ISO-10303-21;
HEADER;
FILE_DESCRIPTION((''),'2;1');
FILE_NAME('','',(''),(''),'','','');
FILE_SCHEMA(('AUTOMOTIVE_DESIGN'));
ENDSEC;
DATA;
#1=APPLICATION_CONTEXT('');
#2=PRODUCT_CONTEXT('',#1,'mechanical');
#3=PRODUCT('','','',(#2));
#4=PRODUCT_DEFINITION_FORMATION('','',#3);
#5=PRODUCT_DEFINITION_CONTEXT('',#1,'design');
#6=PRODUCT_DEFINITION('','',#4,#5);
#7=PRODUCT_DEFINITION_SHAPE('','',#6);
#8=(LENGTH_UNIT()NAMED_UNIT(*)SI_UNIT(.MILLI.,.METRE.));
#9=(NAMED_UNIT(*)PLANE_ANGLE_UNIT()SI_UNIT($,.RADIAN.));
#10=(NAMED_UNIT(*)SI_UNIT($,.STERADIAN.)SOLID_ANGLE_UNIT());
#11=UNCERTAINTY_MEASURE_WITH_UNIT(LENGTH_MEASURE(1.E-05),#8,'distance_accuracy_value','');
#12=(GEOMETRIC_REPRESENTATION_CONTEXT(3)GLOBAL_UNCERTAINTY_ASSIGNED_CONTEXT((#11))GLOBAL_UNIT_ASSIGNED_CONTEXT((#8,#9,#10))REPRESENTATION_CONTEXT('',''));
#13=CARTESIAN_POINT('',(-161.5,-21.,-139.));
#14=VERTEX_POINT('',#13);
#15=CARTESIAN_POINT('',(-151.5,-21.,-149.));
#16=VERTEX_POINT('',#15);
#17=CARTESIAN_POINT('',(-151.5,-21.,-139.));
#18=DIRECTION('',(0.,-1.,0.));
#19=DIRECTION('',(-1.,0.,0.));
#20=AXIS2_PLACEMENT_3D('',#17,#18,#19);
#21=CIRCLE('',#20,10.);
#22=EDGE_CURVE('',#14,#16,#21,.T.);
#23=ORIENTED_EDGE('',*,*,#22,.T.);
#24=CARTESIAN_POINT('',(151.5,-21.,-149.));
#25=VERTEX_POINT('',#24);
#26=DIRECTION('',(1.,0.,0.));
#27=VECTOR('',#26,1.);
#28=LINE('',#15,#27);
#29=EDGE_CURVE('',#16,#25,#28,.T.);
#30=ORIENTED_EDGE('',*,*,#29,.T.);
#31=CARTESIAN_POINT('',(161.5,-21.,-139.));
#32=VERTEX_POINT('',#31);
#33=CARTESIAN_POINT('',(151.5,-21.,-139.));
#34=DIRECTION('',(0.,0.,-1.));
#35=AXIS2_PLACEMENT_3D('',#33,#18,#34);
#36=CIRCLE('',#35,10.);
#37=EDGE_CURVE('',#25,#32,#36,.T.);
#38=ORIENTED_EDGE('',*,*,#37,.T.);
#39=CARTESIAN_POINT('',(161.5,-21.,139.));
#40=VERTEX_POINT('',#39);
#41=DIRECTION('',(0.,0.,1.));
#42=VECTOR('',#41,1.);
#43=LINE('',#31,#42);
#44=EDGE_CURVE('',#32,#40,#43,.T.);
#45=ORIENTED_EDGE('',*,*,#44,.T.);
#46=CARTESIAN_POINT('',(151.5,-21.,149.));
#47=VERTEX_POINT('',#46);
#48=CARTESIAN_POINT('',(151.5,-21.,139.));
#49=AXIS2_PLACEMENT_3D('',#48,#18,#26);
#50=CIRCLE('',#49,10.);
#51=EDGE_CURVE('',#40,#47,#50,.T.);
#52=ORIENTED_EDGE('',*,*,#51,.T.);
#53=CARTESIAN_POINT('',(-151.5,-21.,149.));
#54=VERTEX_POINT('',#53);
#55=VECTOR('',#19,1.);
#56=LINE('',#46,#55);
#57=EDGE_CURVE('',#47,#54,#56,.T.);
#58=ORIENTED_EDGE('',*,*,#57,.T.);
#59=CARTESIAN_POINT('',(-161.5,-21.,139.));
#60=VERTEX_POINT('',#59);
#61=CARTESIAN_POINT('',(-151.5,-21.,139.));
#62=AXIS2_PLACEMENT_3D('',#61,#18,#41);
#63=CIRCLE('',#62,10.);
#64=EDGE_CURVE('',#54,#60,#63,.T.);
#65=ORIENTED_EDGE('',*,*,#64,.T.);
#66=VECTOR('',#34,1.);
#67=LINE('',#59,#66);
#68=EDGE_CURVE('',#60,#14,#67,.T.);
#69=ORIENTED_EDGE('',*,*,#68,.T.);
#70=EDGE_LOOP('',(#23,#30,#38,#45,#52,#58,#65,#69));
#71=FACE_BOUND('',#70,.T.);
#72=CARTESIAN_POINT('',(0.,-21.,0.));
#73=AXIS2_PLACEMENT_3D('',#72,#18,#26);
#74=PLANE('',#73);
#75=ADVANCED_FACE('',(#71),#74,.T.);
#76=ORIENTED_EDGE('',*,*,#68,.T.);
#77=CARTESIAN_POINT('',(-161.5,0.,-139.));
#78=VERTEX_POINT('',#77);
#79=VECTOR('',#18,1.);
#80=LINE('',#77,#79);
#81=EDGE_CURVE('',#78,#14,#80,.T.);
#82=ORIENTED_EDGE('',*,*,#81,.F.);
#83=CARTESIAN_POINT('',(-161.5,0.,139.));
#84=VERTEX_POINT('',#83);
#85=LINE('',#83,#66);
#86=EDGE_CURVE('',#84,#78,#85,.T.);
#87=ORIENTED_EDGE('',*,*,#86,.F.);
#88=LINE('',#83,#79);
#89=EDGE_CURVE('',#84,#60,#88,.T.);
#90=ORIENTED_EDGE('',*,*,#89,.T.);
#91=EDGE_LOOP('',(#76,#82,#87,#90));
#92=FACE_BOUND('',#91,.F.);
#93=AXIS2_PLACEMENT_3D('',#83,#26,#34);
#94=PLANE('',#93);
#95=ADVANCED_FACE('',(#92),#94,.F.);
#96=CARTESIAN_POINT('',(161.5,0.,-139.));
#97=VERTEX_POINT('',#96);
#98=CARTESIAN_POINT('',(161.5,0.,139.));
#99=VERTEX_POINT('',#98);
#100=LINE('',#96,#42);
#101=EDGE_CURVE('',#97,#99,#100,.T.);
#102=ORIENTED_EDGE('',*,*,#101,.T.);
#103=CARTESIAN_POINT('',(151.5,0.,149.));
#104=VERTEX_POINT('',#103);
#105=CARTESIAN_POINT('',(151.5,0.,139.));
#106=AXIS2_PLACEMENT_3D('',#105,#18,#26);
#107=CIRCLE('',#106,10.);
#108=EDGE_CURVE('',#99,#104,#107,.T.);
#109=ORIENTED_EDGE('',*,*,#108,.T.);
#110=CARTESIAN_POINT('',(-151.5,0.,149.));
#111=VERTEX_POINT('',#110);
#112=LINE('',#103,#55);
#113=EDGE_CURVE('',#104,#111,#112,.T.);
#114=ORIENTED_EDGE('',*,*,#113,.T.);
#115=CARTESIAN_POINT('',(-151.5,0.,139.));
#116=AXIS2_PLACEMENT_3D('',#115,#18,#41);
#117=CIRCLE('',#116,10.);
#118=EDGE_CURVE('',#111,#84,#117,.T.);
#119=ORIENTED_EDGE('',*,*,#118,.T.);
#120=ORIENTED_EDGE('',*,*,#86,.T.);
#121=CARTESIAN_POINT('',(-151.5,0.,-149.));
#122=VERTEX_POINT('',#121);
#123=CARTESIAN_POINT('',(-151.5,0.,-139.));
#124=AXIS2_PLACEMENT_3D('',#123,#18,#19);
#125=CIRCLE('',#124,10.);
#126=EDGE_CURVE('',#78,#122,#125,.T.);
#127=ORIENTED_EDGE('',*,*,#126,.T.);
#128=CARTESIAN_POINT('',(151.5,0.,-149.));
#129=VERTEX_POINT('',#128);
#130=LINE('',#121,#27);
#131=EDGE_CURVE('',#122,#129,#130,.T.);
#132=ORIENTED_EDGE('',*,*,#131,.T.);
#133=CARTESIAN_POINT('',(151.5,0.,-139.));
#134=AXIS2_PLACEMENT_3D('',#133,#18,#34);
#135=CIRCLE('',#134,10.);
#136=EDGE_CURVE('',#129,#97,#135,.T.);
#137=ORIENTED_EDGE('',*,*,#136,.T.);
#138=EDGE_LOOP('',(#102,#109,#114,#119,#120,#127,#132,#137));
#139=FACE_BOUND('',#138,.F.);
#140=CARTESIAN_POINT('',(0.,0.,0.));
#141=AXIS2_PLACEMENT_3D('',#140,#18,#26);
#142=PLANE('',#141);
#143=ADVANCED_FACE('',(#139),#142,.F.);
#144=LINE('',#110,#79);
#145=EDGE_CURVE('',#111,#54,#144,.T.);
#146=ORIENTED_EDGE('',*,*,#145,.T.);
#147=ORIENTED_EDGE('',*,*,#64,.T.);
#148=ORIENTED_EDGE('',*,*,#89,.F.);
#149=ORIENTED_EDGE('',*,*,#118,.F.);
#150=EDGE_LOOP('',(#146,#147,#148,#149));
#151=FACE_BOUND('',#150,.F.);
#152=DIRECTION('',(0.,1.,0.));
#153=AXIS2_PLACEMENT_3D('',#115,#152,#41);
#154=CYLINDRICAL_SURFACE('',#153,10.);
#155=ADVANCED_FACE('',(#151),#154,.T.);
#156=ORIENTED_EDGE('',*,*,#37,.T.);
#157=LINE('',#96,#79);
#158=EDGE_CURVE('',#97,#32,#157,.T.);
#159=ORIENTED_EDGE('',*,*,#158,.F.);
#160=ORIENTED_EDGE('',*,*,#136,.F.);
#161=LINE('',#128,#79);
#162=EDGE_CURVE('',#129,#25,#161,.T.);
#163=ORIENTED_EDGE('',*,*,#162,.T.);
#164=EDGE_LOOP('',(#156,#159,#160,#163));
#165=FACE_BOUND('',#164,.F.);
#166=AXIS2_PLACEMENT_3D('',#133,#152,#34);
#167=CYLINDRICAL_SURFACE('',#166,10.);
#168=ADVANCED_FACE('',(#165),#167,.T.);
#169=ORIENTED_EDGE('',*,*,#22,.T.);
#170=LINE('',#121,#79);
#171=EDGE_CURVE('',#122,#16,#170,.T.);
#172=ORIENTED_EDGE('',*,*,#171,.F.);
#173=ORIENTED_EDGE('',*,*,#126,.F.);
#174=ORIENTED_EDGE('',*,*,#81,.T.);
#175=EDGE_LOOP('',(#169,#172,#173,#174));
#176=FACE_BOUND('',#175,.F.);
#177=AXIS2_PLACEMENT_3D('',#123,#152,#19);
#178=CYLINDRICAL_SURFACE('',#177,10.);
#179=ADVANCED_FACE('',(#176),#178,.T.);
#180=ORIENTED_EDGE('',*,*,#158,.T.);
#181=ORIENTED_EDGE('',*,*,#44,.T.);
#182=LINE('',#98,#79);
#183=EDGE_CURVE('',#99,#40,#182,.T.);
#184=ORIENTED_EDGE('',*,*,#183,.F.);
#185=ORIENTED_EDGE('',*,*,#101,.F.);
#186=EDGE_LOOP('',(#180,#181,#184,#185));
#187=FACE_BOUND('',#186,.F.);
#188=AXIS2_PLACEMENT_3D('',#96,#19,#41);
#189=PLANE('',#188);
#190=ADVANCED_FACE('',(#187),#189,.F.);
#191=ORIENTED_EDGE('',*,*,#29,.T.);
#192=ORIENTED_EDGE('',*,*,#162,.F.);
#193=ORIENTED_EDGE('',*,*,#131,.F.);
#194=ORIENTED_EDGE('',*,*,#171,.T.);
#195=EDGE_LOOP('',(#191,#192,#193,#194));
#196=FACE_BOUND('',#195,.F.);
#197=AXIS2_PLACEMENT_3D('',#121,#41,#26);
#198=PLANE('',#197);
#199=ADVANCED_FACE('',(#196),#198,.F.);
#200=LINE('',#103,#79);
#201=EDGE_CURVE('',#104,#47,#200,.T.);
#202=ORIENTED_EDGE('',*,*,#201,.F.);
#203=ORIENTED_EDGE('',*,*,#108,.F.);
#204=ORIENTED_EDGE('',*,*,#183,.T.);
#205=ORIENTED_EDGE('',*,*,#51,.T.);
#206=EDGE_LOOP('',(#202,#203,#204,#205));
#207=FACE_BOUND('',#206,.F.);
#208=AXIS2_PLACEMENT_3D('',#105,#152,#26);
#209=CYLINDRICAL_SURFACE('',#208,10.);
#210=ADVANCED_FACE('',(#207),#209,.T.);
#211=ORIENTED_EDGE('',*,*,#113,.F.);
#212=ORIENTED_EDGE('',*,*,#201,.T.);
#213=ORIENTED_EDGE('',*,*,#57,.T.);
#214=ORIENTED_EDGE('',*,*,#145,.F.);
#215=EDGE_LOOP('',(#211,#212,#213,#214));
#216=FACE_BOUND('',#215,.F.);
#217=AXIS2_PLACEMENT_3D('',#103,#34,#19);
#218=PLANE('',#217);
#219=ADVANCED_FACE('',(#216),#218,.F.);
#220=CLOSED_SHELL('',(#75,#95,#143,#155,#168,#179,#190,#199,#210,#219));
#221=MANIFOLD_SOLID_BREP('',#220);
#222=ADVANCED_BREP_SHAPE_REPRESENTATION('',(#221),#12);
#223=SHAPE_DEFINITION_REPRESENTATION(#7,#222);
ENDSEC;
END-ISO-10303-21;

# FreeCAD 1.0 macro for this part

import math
import FreeCAD as App
import Part
import Sketcher

V = App.Vector
Q = App.Units.Quantity

doc = App.newDocument("Part")
body = doc.addObject("PartDesign::Body", "Body")

# Sketch on XZ plane
sketch1 = body.newObject("Sketcher::SketchObject", "Sketch")
sketch1.AttachmentSupport = (doc.getObject("XZ_Plane"), [""])
sketch1.MapMode = "FlatFace"
sketch1.addGeometry([
    Part.LineSegment(V(151.5, 149, 0), V(-151.5, 149, 0)),  # 0
    Part.ArcOfCircle(Part.Circle(V(-151.5, 139, 0), V(0, 0, 1), 10), math.radians(90), math.radians(180)),  # 1
    Part.LineSegment(V(-161.5, 139, 0), V(-161.5, -139, 0)),  # 2
    Part.ArcOfCircle(Part.Circle(V(-151.5, -139, 0), V(0, 0, 1), 10), math.radians(180), math.radians(270)),  # 3
    Part.LineSegment(V(-151.5, -149, 0), V(151.5, -149, 0)),  # 4
    Part.ArcOfCircle(Part.Circle(V(151.5, -139, 0), V(0, 0, 1), 10), math.radians(-90), math.radians(0)),  # 5
    Part.LineSegment(V(161.5, -139, 0), V(161.5, 139, 0)),  # 6
    Part.ArcOfCircle(Part.Circle(V(151.5, 139, 0), V(0, 0, 1), 10), math.radians(0), math.radians(90)),  # 7
], False)
sketch1.addConstraint([
    Sketcher.Constraint("Tangent", 0, 2, 1, 1),
    Sketcher.Constraint("Tangent", 1, 2, 2, 1),
    Sketcher.Constraint("Tangent", 2, 2, 3, 1),
    Sketcher.Constraint("Tangent", 3, 2, 4, 1),
    Sketcher.Constraint("Tangent", 4, 2, 5, 1),
    Sketcher.Constraint("Tangent", 5, 2, 6, 1),
    Sketcher.Constraint("Tangent", 6, 2, 7, 1),
    Sketcher.Constraint("Tangent", 7, 2, 0, 1),
    Sketcher.Constraint("Horizontal", 0),
    Sketcher.Constraint("Vertical", 2),
    Sketcher.Constraint("Horizontal", 4),
    Sketcher.Constraint("Vertical", 6),
    Sketcher.Constraint("Equal", 1, 3),
    Sketcher.Constraint("Equal", 3, 5),
    Sketcher.Constraint("Equal", 5, 7),
    Sketcher.Constraint("Symmetric", 1, 3, 5, 3, -1, 1),
    Sketcher.Constraint("Radius", 1, Q("10 mm")),
    Sketcher.Constraint("DistanceX", 0, 2, 0, 1, Q("303 mm")),
    Sketcher.Constraint("DistanceY", 2, 2, 2, 1, Q("278 mm")),
])
pad1 = body.newObject("PartDesign::Pad", "Pad")
pad1.Profile = sketch1
pad1.Length = 21

doc.recompute()
